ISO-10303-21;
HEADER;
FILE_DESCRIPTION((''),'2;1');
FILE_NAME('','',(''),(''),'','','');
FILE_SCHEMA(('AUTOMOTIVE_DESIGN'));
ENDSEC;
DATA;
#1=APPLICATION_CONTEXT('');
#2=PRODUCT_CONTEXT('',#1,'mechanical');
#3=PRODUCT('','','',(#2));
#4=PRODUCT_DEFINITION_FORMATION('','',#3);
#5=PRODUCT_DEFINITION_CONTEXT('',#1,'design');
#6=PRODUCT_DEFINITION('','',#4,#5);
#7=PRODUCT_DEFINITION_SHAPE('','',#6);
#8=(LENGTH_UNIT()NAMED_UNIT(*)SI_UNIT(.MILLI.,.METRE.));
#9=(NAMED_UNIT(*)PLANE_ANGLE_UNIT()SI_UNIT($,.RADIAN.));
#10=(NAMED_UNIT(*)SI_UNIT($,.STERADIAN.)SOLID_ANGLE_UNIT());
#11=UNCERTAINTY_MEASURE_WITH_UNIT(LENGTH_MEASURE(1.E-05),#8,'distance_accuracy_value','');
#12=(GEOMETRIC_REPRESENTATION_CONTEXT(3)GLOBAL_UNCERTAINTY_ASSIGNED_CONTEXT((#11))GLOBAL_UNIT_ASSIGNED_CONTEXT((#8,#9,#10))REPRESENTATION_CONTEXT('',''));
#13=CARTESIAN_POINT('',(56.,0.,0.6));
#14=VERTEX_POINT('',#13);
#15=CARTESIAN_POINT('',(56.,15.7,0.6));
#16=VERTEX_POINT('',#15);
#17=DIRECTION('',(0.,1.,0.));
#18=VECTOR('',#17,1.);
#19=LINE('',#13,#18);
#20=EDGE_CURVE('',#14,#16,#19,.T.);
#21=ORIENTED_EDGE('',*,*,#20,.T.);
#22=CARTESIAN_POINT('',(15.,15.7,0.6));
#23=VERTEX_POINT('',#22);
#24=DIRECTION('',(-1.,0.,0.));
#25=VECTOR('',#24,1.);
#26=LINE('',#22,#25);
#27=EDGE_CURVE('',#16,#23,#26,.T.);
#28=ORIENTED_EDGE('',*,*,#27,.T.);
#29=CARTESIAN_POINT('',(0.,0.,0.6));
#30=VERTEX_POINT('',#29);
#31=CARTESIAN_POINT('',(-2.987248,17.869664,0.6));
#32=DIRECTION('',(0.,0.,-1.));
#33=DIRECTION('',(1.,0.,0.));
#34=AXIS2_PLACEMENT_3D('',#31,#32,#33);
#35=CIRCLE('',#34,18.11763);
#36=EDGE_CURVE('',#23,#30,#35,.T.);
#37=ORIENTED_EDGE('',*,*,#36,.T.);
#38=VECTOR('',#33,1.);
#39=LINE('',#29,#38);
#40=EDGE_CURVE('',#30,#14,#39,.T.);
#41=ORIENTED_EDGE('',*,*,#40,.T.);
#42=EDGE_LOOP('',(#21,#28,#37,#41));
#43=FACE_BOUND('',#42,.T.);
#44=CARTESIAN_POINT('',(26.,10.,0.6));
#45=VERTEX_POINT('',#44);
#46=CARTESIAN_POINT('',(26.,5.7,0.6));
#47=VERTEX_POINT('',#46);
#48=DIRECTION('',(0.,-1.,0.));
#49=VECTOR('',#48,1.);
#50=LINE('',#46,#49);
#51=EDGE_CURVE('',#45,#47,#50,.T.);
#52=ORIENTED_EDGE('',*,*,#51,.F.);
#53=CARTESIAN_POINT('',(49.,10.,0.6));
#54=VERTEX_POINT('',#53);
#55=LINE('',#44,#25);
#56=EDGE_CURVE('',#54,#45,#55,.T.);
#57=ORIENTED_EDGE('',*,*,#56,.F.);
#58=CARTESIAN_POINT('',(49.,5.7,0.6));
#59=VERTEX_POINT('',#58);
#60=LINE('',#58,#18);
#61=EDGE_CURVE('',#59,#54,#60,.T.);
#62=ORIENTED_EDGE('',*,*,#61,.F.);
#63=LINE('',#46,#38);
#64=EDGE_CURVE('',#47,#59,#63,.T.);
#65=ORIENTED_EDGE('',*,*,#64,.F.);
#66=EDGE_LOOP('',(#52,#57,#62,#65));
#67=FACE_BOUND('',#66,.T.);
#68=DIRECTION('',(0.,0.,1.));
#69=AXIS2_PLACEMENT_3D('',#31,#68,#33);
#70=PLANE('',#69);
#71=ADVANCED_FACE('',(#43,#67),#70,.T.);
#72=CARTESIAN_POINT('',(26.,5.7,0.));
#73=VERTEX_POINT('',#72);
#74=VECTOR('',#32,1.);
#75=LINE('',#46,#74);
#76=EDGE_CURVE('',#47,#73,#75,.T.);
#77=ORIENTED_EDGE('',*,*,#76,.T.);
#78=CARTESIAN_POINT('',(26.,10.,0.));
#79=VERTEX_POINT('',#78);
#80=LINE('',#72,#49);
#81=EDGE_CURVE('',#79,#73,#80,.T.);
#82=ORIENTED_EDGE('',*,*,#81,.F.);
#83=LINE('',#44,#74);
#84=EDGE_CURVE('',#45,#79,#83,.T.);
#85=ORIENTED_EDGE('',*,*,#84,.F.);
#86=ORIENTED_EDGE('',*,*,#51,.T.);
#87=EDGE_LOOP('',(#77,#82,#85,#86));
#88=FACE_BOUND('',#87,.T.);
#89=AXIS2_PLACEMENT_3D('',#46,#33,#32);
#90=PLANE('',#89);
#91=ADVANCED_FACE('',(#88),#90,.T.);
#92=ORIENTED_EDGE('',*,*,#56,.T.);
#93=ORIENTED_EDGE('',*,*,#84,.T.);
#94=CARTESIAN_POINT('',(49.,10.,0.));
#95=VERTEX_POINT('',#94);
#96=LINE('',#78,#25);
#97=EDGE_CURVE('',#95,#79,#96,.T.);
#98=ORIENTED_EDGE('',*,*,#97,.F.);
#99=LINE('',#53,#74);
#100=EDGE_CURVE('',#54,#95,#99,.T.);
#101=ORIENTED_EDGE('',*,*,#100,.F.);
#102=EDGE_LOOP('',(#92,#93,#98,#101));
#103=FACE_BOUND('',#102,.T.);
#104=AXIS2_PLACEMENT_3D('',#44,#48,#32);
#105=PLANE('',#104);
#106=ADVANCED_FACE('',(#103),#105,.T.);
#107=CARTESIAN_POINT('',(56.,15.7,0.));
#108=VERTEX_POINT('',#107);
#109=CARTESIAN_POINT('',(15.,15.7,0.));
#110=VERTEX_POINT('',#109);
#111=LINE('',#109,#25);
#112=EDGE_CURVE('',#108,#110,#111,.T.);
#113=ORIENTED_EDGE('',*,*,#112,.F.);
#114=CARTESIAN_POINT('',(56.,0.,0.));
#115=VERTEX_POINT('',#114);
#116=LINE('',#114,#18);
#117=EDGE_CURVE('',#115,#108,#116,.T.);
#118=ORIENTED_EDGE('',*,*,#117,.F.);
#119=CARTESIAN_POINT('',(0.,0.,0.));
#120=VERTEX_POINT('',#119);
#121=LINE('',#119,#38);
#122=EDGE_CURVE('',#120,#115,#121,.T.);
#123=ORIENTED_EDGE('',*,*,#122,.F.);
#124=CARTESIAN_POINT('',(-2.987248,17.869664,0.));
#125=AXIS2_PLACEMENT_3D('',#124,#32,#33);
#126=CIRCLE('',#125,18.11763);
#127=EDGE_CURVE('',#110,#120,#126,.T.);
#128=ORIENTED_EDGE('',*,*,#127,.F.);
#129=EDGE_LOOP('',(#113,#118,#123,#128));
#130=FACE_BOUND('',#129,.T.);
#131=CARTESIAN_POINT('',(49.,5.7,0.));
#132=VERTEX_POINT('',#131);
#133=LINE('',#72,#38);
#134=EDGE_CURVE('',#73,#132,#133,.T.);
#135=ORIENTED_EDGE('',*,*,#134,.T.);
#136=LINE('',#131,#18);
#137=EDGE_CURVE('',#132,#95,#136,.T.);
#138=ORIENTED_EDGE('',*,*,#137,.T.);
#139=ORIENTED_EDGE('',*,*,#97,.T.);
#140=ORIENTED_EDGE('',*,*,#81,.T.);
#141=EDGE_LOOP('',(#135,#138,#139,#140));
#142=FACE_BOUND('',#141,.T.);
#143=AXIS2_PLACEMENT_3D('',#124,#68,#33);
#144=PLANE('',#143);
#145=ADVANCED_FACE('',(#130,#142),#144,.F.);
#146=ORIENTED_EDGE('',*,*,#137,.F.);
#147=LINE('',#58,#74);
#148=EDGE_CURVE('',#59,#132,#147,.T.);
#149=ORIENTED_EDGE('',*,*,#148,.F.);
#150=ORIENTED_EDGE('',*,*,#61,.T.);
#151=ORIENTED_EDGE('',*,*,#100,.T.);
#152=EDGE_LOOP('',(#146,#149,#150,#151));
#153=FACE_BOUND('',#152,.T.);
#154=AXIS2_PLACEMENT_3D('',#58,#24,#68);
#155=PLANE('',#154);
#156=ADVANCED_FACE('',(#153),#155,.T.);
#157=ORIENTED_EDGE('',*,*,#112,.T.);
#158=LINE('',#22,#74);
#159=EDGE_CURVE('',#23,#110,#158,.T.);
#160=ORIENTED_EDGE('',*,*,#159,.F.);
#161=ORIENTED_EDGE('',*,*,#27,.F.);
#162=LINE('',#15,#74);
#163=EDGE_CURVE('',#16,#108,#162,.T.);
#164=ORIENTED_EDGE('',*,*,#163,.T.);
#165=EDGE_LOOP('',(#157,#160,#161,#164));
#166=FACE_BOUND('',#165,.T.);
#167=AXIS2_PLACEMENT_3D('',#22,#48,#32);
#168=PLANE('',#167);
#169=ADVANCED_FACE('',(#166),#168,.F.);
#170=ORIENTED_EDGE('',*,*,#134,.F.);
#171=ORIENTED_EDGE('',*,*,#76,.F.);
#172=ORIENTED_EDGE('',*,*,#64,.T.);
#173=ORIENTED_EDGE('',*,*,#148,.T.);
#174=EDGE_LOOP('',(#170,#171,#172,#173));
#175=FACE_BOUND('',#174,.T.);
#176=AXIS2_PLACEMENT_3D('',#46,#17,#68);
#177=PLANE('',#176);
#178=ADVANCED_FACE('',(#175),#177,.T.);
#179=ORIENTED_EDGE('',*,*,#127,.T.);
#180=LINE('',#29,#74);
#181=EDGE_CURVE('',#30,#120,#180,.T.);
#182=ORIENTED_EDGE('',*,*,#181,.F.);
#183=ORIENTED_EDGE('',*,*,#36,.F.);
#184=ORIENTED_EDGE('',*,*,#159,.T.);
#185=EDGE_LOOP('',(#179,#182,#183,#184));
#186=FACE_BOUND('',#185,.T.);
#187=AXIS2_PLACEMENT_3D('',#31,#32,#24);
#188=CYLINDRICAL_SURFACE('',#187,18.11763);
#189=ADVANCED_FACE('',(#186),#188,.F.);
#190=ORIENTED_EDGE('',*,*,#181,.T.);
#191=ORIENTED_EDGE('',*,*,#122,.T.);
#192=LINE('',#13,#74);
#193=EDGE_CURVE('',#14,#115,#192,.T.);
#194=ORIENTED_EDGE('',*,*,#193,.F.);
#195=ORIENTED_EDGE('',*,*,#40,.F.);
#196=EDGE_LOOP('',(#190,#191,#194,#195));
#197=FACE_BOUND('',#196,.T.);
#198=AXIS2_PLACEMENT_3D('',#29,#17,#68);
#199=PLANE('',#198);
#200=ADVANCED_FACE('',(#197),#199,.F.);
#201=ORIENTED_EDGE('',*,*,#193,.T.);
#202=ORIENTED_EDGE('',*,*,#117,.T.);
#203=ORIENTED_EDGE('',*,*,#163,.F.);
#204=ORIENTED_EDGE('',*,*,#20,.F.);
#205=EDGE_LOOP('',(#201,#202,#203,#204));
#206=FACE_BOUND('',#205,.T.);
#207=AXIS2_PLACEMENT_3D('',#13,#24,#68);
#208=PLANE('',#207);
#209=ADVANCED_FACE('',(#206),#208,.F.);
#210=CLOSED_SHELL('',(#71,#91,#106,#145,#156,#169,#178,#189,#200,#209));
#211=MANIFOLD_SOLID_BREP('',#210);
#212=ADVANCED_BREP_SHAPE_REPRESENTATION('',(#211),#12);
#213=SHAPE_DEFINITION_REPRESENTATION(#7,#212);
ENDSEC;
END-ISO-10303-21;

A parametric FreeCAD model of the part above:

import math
import FreeCAD as App
import Part
import Sketcher

V = App.Vector
Q = App.Units.Quantity

doc = App.newDocument("Part")
body = doc.addObject("PartDesign::Body", "Body")

# Sketch on XY plane
sketch1 = body.newObject("Sketcher::SketchObject", "Sketch")
sketch1.AttachmentSupport = (doc.getObject("XY_Plane"), [""])
sketch1.MapMode = "FlatFace"
sketch1.addGeometry([
    Part.LineSegment(V(0, 0, 0), V(56, 0, 0)),  # 0
    Part.LineSegment(V(56, 0, 0), V(56, 15.7, 0)),  # 1
    Part.LineSegment(V(56, 15.7, 0), V(15, 15.7, 0)),  # 2
    Part.ArcOfCircle(Part.Circle(V(-3, 17.9, 0), V(0, 0, 1), 18.1), math.radians(-81), math.radians(-7)),  # 3
    Part.LineSegment(V(49, 5.7, 0), V(26, 5.7, 0)),  # 4
    Part.LineSegment(V(26, 5.7, 0), V(26, 10, 0)),  # 5
    Part.LineSegment(V(26, 10, 0), V(49, 10, 0)),  # 6
    Part.LineSegment(V(49, 10, 0), V(49, 5.7, 0)),  # 7
], False)
sketch1.addConstraint([
    Sketcher.Constraint("Coincident", 0, 2, 1, 1),
    Sketcher.Constraint("Coincident", 1, 2, 2, 1),
    Sketcher.Constraint("Coincident", 2, 2, 3, 2),
    Sketcher.Constraint("Coincident", 3, 1, 0, 1),
    Sketcher.Constraint("Coincident", 4, 2, 5, 1),
    Sketcher.Constraint("Coincident", 5, 2, 6, 1),
    Sketcher.Constraint("Coincident", 6, 2, 7, 1),
    Sketcher.Constraint("Coincident", 7, 2, 4, 1),
    Sketcher.Constraint("Horizontal", 0),
    Sketcher.Constraint("Vertical", 1),
    Sketcher.Constraint("Horizontal", 2),
    Sketcher.Constraint("Horizontal", 4),
    Sketcher.Constraint("Vertical", 5),
    Sketcher.Constraint("Horizontal", 6),
    Sketcher.Constraint("Vertical", 7),
    Sketcher.Constraint("Coincident", 3, 1, -1, 1),
    Sketcher.Constraint("DistanceX", 0, 1, 0, 2, Q("56 mm")),
    Sketcher.Constraint("DistanceX", 2, 2, 2, 1, Q("41 mm")),
    Sketcher.Constraint("DistanceX", 4, 2, 4, 1, Q("23 mm")),
    Sketcher.Constraint("DistanceY", 1, 1, 1, 2, Q("15.7 mm")),
    Sketcher.Constraint("DistanceY", 5, 1, 5, 2, Q("4.3 mm")),
    Sketcher.Constraint("DistanceX", -1, 1, 4, 2, Q("26 mm")),
    Sketcher.Constraint("DistanceY", -1, 1, 5, 2, Q("10 mm")),
    Sketcher.Constraint("Radius", 3, Q("18.11763 mm")),
])
pad1 = body.newObject("PartDesign::Pad", "Pad")
pad1.Profile = sketch1
pad1.Length = 0.6

doc.recompute()
